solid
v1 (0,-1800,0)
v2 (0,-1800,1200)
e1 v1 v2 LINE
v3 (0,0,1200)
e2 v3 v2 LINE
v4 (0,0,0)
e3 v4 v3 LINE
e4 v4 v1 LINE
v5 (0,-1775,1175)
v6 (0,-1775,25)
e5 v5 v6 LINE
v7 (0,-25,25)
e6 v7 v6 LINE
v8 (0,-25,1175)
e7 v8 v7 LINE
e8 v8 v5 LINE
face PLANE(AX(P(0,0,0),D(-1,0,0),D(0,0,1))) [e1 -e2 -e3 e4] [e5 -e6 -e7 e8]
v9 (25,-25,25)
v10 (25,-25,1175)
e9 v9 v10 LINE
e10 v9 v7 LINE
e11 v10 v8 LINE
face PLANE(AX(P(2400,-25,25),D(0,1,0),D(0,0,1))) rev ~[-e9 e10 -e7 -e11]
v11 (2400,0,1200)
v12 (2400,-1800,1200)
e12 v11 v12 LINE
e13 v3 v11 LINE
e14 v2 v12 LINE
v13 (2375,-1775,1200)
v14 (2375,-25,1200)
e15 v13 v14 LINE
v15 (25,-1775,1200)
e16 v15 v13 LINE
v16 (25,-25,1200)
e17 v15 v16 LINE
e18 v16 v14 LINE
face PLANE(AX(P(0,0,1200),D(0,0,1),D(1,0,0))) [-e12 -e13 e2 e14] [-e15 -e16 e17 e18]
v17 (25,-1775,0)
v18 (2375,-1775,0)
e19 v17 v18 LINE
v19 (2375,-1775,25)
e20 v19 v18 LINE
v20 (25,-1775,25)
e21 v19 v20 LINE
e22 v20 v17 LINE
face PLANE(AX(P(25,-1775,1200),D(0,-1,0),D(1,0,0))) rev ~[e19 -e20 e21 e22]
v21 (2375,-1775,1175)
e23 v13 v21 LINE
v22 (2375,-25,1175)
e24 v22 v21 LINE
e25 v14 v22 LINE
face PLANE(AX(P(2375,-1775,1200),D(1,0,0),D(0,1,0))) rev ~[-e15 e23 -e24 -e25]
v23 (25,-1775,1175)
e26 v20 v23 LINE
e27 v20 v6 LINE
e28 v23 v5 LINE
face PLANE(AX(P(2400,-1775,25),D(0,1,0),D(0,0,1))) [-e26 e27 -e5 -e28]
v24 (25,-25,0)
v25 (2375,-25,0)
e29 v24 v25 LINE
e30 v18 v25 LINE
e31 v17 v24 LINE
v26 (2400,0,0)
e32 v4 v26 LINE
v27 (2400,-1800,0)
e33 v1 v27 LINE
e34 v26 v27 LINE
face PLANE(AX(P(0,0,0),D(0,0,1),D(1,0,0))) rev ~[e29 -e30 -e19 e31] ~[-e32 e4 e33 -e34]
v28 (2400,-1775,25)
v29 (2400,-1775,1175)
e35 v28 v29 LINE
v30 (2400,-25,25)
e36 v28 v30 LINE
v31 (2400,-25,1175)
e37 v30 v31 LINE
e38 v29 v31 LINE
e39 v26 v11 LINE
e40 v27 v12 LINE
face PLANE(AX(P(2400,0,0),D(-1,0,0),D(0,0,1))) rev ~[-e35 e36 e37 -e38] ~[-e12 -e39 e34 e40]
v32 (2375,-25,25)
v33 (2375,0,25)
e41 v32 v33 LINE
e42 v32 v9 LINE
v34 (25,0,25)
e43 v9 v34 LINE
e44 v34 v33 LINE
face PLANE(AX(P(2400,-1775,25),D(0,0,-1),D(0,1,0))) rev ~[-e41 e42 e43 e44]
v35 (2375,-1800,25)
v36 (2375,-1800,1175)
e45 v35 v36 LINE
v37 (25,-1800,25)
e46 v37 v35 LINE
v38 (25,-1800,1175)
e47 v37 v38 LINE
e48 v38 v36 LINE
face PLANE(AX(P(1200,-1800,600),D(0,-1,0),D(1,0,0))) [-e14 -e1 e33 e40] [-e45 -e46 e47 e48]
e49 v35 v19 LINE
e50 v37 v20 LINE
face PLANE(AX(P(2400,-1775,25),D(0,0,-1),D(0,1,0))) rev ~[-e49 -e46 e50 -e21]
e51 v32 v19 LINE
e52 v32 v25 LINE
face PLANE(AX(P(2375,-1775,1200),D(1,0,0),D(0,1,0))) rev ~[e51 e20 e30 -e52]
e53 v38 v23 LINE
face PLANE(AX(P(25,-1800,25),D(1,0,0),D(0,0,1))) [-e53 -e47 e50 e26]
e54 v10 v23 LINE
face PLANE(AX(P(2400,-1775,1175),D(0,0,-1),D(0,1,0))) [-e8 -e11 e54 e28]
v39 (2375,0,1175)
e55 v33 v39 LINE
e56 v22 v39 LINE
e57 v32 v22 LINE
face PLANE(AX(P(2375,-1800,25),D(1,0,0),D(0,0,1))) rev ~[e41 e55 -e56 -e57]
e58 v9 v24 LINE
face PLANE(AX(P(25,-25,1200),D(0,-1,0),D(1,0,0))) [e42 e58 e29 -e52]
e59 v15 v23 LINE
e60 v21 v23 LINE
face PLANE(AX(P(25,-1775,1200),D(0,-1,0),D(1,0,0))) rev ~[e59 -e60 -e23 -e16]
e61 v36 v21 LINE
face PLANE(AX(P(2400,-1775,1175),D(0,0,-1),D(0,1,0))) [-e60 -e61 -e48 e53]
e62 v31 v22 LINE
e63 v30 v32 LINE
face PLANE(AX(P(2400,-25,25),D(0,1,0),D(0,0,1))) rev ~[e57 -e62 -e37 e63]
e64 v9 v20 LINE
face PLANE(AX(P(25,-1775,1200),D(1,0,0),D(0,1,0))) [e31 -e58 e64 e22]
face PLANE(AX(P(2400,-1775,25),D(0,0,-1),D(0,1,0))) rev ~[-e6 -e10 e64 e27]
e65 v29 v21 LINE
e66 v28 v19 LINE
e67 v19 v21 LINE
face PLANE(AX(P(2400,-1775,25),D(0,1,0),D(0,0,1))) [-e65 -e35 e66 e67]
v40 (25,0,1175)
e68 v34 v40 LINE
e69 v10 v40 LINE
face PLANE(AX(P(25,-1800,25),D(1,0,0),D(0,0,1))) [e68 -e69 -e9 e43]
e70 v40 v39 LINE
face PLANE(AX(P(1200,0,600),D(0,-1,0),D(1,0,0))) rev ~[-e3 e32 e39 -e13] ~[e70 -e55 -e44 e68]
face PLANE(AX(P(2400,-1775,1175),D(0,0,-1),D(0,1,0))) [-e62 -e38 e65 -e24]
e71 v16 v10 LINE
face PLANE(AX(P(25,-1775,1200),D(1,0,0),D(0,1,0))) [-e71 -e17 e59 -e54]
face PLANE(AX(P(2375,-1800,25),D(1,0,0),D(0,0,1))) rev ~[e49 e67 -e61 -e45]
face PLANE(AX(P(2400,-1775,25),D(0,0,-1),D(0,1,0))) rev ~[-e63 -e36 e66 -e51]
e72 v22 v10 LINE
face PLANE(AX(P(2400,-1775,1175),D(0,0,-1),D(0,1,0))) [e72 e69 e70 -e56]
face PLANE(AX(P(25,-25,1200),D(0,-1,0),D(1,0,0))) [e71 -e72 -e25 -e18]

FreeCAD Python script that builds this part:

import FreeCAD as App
import Part
import Sketcher
from FreeCAD import Vector
Q = App.Units.Quantity

doc = App.newDocument("Part")
body = doc.addObject("PartDesign::Body", "Body")

# Sketch on XZ plane
sketch1 = body.newObject("Sketcher::SketchObject", "Sketch")
sketch1.AttachmentSupport = (doc.getObject("XZ_Plane"), [""])
sketch1.MapMode = "FlatFace"
sketch1.addGeometry([
    Part.LineSegment(Vector(0, 1200, 0), Vector(0, 0, 0)),
    Part.LineSegment(Vector(0, 0, 0), Vector(2400, 0, 0)),
    Part.LineSegment(Vector(2400, 0, 0), Vector(2400, 1200, 0)),
    Part.LineSegment(Vector(2400, 1200, 0), Vector(0, 1200, 0)),
], False)
sketch1.addConstraint([
    Sketcher.Constraint("Coincident", 0, 2, 1, 1),
    Sketcher.Constraint("Coincident", 1, 2, 2, 1),
    Sketcher.Constraint("Coincident", 2, 2, 3, 1),
    Sketcher.Constraint("Coincident", 3, 2, 0, 1),
    Sketcher.Constraint("Vertical", 0),
    Sketcher.Constraint("Horizontal", 1),
    Sketcher.Constraint("Vertical", 2),
    Sketcher.Constraint("Horizontal", 3),
    Sketcher.Constraint("Coincident", 0, 2, -1, 1),
    Sketcher.Constraint("DistanceX", 1, 1, 1, 2, Q("2400 mm")),
    Sketcher.Constraint("DistanceY", 0, 2, 0, 1, Q("1200 mm")),
])
pad1 = body.newObject("PartDesign::Pad", "Pad")
pad1.Profile = sketch1
pad1.Length = 1800

# Sketch on XZ plane
sketch2 = body.newObject("Sketcher::SketchObject", "Sketch001")
sketch2.AttachmentSupport = (doc.getObject("XZ_Plane"), [""])
sketch2.MapMode = "FlatFace"
sketch2.AttachmentOffset = App.Placement(Vector(0, 0, 1800), App.Rotation())
sketch2.addGeometry([
    Part.LineSegment(Vector(25, 1175, 0), Vector(25, 25, 0)),
    Part.LineSegment(Vector(25, 25, 0), Vector(2375, 25, 0)),
    Part.LineSegment(Vector(2375, 25, 0), Vector(2375, 1175, 0)),
    Part.LineSegment(Vector(2375, 1175, 0), Vector(25, 1175, 0)),
], False)
sketch2.addConstraint([
    Sketcher.Constraint("Coincident", 0, 2, 1, 1),
    Sketcher.Constraint("Coincident", 1, 2, 2, 1),
    Sketcher.Constraint("Coincident", 2, 2, 3, 1),
    Sketcher.Constraint("Coincident", 3, 2, 0, 1),
    Sketcher.Constraint("Vertical", 0),
    Sketcher.Constraint("Horizontal", 1),
    Sketcher.Constraint("Vertical", 2),
    Sketcher.Constraint("Horizontal", 3),
    Sketcher.Constraint("DistanceX", 1, 1, 1, 2, Q("2350 mm")),
    Sketcher.Constraint("DistanceY", 0, 2, 0, 1, Q("1150 mm")),
    Sketcher.Constraint("DistanceX", -1, 1, 0, 2, Q("25 mm")),
    Sketcher.Constraint("DistanceY", -1, 1, 0, 2, Q("25 mm")),
])
pocket1 = body.newObject("PartDesign::Pocket", "Pocket")
pocket1.Profile = sketch2
pocket1.Type = "ThroughAll"

# Sketch on YZ plane
sketch3 = body.newObject("Sketcher::SketchObject", "Sketch002")
sketch3.AttachmentSupport = (doc.getObject("YZ_Plane"), [""])
sketch3.MapMode = "FlatFace"
sketch3.AttachmentOffset = App.Placement(Vector(0, 0, 2400), App.Rotation())
sketch3.addGeometry([
    Part.LineSegment(Vector(-1775, 1175, 0), Vector(-1775, 25, 0)),
    Part.LineSegment(Vector(-1775, 25, 0), Vector(-25, 25, 0)),
    Part.LineSegment(Vector(-25, 25, 0), Vector(-25, 1175, 0)),
    Part.LineSegment(Vector(-25, 1175, 0), Vector(-1775, 1175, 0)),
], False)
sketch3.addConstraint([
    Sketcher.Constraint("Coincident", 0, 2, 1, 1),
    Sketcher.Constraint("Coincident", 1, 2, 2, 1),
    Sketcher.Constraint("Coincident", 2, 2, 3, 1),
    Sketcher.Constraint("Coincident", 3, 2, 0, 1),
    Sketcher.Constraint("Vertical", 0),
    Sketcher.Constraint("Horizontal", 1),
    Sketcher.Constraint("Vertical", 2),
    Sketcher.Constraint("Horizontal", 3),
    Sketcher.Constraint("DistanceX", 1, 1, 1, 2, Q("1750 mm")),
    Sketcher.Constraint("DistanceY", 0, 2, 0, 1, Q("1150 mm")),
    Sketcher.Constraint("DistanceX", 0, 2, -1, 1, Q("1775 mm")),
    Sketcher.Constraint("DistanceY", -1, 1, 0, 2, Q("25 mm")),
])
pocket2 = body.newObject("PartDesign::Pocket", "Pocket001")
pocket2.Profile = sketch3
pocket2.Type = "ThroughAll"

# Sketch on XY plane
sketch4 = body.newObject("Sketcher::SketchObject", "Sketch003")
sketch4.AttachmentSupport = (doc.getObject("XY_Plane"), [""])
sketch4.MapMode = "FlatFace"
sketch4.AttachmentOffset = App.Placement(Vector(0, 0, 1200), App.Rotation())
sketch4.addGeometry([
    Part.LineSegment(Vector(25, -25, 0), Vector(25, -1775, 0)),
    Part.LineSegment(Vector(25, -1775, 0), Vector(2375, -1775, 0)),
    Part.LineSegment(Vector(2375, -1775, 0), Vector(2375, -25, 0)),
    Part.LineSegment(Vector(2375, -25, 0), Vector(25, -25, 0)),
], False)
sketch4.addConstraint([
    Sketcher.Constraint("Coincident", 0, 2, 1, 1),
    Sketcher.Constraint("Coincident", 1, 2, 2, 1),
    Sketcher.Constraint("Coincident", 2, 2, 3, 1),
    Sketcher.Constraint("Coincident", 3, 2, 0, 1),
    Sketcher.Constraint("Vertical", 0),
    Sketcher.Constraint("Horizontal", 1),
    Sketcher.Constraint("Vertical", 2),
    Sketcher.Constraint("Horizontal", 3),
    Sketcher.Constraint("DistanceX", 1, 1, 1, 2, Q("2350 mm")),
    Sketcher.Constraint("DistanceY", 0, 2, 0, 1, Q("1750 mm")),
    Sketcher.Constraint("DistanceX", -1, 1, 0, 2, Q("25 mm")),
    Sketcher.Constraint("DistanceY", 0, 2, -1, 1, Q("1775 mm")),
])
pocket3 = body.newObject("PartDesign::Pocket", "Pocket002")
pocket3.Profile = sketch4
pocket3.Type = "ThroughAll"

doc.recompute()
